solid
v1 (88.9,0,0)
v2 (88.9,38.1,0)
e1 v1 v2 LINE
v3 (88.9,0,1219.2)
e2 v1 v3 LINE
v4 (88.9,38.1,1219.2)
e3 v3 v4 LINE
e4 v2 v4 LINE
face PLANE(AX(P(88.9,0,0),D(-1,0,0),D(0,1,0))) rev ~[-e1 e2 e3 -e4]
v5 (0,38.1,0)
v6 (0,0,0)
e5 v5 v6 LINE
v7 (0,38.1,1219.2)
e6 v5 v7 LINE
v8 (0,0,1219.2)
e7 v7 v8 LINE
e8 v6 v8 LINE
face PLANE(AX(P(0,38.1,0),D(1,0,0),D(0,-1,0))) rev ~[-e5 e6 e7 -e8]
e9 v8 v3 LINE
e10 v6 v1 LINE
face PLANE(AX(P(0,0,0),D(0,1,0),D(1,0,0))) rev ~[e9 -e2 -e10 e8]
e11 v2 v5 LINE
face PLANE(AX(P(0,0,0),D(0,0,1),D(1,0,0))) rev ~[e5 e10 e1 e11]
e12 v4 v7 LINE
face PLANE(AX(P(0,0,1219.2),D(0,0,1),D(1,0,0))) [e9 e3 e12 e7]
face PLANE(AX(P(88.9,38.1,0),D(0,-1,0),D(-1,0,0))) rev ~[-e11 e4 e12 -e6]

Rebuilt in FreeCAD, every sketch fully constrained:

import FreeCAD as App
import Part
import Sketcher

V = App.Vector
Q = App.Units.Quantity

doc = App.newDocument("Part")
params = doc.addObject("Spreadsheet::Sheet", "Params")
for row, (alias, value) in enumerate([
    ("sketch1_width", "3.5 in"),
    ("sketch1_height", "1.5 in"),
    ("pad1_length", "48 in"),
], start=1):
    params.set(f"A{row}", alias)
    params.set(f"B{row}", "=" + value)
    params.setAlias(f"B{row}", alias)

body = doc.addObject("PartDesign::Body", "Body")

# Sketch on XY plane
sketch1 = body.newObject("Sketcher::SketchObject", "Sketch")
sketch1.AttachmentSupport = (doc.getObject("XY_Plane"), [""])
sketch1.MapMode = "FlatFace"
sketch1.addGeometry(Part.LineSegment(V(0, 38, 0), V(0, 0, 0)), False)
sketch1.addGeometry(Part.LineSegment(V(0, 0, 0), V(89, 0, 0)), False)
sketch1.addGeometry(Part.LineSegment(V(89, 0, 0), V(89, 38, 0)), False)
sketch1.addGeometry(Part.LineSegment(V(89, 38, 0), V(0, 38, 0)), False)
sketch1.addConstraint(Sketcher.Constraint("Coincident", 0, 2, 1, 1))
sketch1.addConstraint(Sketcher.Constraint("Coincident", 1, 2, 2, 1))
sketch1.addConstraint(Sketcher.Constraint("Coincident", 2, 2, 3, 1))
sketch1.addConstraint(Sketcher.Constraint("Coincident", 3, 2, 0, 1))
sketch1.addConstraint(Sketcher.Constraint("Vertical", 0))
sketch1.addConstraint(Sketcher.Constraint("Horizontal", 1))
sketch1.addConstraint(Sketcher.Constraint("Vertical", 2))
sketch1.addConstraint(Sketcher.Constraint("Horizontal", 3))
sketch1.addConstraint(Sketcher.Constraint("Coincident", 0, 2, -1, 1))
sketch1.addConstraint(Sketcher.Constraint("DistanceX", 1, 1, 1, 2, Q("3.5 in")))
sketch1.addConstraint(Sketcher.Constraint("DistanceY", 0, 2, 0, 1, Q("1.5 in")))
sketch1.setExpression("Constraints[9]", "Params.sketch1_width")
sketch1.setExpression("Constraints[10]", "Params.sketch1_height")
pad1 = body.newObject("PartDesign::Pad", "Pad")
pad1.Profile = sketch1
pad1.setExpression("Length", "Params.pad1_length")

doc.recompute()
